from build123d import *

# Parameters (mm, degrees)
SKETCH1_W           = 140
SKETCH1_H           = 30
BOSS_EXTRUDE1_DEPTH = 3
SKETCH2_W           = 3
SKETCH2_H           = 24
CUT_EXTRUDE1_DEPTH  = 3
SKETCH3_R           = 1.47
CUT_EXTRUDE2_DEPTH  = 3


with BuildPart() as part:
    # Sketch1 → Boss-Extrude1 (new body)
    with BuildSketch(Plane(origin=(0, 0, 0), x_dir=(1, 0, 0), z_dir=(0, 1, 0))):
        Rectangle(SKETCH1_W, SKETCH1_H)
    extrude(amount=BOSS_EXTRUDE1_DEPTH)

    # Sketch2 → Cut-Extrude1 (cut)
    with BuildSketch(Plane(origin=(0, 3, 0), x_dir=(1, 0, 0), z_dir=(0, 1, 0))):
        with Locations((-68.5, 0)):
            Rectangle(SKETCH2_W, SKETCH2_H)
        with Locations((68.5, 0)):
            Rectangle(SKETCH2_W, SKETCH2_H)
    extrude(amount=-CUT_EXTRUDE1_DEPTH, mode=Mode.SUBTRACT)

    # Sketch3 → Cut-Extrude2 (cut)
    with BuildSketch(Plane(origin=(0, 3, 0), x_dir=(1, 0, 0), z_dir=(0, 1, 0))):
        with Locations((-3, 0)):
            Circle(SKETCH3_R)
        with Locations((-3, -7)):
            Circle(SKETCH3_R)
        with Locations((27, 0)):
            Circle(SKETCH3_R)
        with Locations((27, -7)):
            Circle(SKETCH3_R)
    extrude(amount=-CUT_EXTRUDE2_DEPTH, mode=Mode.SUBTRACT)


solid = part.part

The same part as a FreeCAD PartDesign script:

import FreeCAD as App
import Part
import Sketcher
from FreeCAD import Vector

doc = App.newDocument("Part")
body = doc.addObject("PartDesign::Body", "Body")

sketch1 = body.newObject("Sketcher::SketchObject", "Sketch")
sketch1.AttachmentSupport = (doc.getObject("XZ_Plane"), [""])
sketch1.MapMode = "FlatFace"
sketch1.addGeometry([
    Part.LineSegment(Vector(-70, -15, 0), Vector(-70, 15, 0)),
    Part.LineSegment(Vector(-70, 15, 0), Vector(70, 15, 0)),
    Part.LineSegment(Vector(70, 15, 0), Vector(70, -15, 0)),
    Part.LineSegment(Vector(70, -15, 0), Vector(-70, -15, 0)),
], False)
sketch1.addConstraint([
    Sketcher.Constraint("Coincident", 0, 2, 1, 1),
    Sketcher.Constraint("Coincident", 1, 2, 2, 1),
    Sketcher.Constraint("Coincident", 2, 2, 3, 1),
    Sketcher.Constraint("Coincident", 3, 2, 0, 1),
    Sketcher.Constraint("Vertical", 0),
    Sketcher.Constraint("Horizontal", 1),
    Sketcher.Constraint("Vertical", 2),
    Sketcher.Constraint("Horizontal", 3),
    Sketcher.Constraint("Symmetric", 0, 2, 2, 2, -1, 1),
    Sketcher.Constraint("DistanceX", 1, 1, 1, 2, 140.0),
    Sketcher.Constraint("DistanceY", 0, 1, 0, 2, 30.0),
])
pad1 = body.newObject("PartDesign::Pad", "Pad")
pad1.Profile = sketch1
pad1.Length = 3
pad1.Reversed = True

sketch2 = body.newObject("Sketcher::SketchObject", "Sketch001")
sketch2.AttachmentSupport = (doc.getObject("XZ_Plane"), [""])
sketch2.MapMode = "FlatFace"
sketch2.AttachmentOffset = App.Placement(Vector(0, 0, -3), App.Rotation())
sketch2.addGeometry([
    Part.LineSegment(Vector(-70, -12, 0), Vector(-70, 12, 0)),
    Part.LineSegment(Vector(-70, 12, 0), Vector(-67, 12, 0)),
    Part.LineSegment(Vector(-67, 12, 0), Vector(-67, -12, 0)),
    Part.LineSegment(Vector(-67, -12, 0), Vector(-70, -12, 0)),
    Part.LineSegment(Vector(67, -12, 0), Vector(67, 12, 0)),
    Part.LineSegment(Vector(67, 12, 0), Vector(70, 12, 0)),
    Part.LineSegment(Vector(70, 12, 0), Vector(70, -12, 0)),
    Part.LineSegment(Vector(70, -12, 0), Vector(67, -12, 0)),
], False)
sketch2.addConstraint([
    Sketcher.Constraint("Coincident", 0, 2, 1, 1),
    Sketcher.Constraint("Coincident", 1, 2, 2, 1),
    Sketcher.Constraint("Coincident", 2, 2, 3, 1),
    Sketcher.Constraint("Coincident", 3, 2, 0, 1),
    Sketcher.Constraint("Coincident", 4, 2, 5, 1),
    Sketcher.Constraint("Coincident", 5, 2, 6, 1),
    Sketcher.Constraint("Coincident", 6, 2, 7, 1),
    Sketcher.Constraint("Coincident", 7, 2, 4, 1),
    Sketcher.Constraint("Vertical", 0),
    Sketcher.Constraint("Horizontal", 1),
    Sketcher.Constraint("Vertical", 2),
    Sketcher.Constraint("Horizontal", 3),
    Sketcher.Constraint("Vertical", 4),
    Sketcher.Constraint("Horizontal", 5),
    Sketcher.Constraint("Vertical", 6),
    Sketcher.Constraint("Horizontal", 7),
    Sketcher.Constraint("Symmetric", 2, 2, 4, 2, -1, 1),
    Sketcher.Constraint("Symmetric", 0, 2, 6, 2, -1, 1),
    Sketcher.Constraint("Horizontal", 1, 2, 4, 2),
    Sketcher.Constraint("DistanceX", 1, 1, 1, 2, 3.0),
    Sketcher.Constraint("DistanceY", 0, 1, 0, 2, 24.0),
    Sketcher.Constraint("DistanceX", 0, 2, -1, 1, 70.0),
])
pocket1 = body.newObject("PartDesign::Pocket", "Pocket")
pocket1.Profile = sketch2
pocket1.Length = 3
pocket1.Reversed = True

sketch3 = body.newObject("Sketcher::SketchObject", "Sketch002")
sketch3.AttachmentSupport = (doc.getObject("XZ_Plane"), [""])
sketch3.MapMode = "FlatFace"
sketch3.AttachmentOffset = App.Placement(Vector(0, 0, -3), App.Rotation())
sketch3.addGeometry([
    Part.Circle(Vector(-3, 0, 0), Vector(0, 0, 1), 1.5),
    Part.Circle(Vector(-3, 7, 0), Vector(0, 0, 1), 1.5),
    Part.Circle(Vector(27, 0, 0), Vector(0, 0, 1), 1.5),
    Part.Circle(Vector(27, 7, 0), Vector(0, 0, 1), 1.5),
], False)
sketch3.addConstraint([
    Sketcher.Constraint("Equal", 0, 1),
    Sketcher.Constraint("Equal", 1, 2),
    Sketcher.Constraint("Equal", 2, 3),
    Sketcher.Constraint("PointOnObject", 0, 3, -1),
    Sketcher.Constraint("PointOnObject", 2, 3, -1),
    Sketcher.Constraint("Horizontal", 1, 3, 3, 3),
    Sketcher.Constraint("Vertical", 0, 3, 1, 3),
    Sketcher.Constraint("Vertical", 2, 3, 3, 3),
    Sketcher.Constraint("Diameter", 0, 2.94),
    Sketcher.Constraint("DistanceX", 0, 3, -1, 1, 3.0),
    Sketcher.Constraint("DistanceY", -1, 1, 1, 3, 7.0),
    Sketcher.Constraint("DistanceX", -1, 1, 2, 3, 27.0),
])
pocket2 = body.newObject("PartDesign::Pocket", "Pocket001")
pocket2.Profile = sketch3
pocket2.Length = 3
pocket2.Reversed = True

doc.recompute()
